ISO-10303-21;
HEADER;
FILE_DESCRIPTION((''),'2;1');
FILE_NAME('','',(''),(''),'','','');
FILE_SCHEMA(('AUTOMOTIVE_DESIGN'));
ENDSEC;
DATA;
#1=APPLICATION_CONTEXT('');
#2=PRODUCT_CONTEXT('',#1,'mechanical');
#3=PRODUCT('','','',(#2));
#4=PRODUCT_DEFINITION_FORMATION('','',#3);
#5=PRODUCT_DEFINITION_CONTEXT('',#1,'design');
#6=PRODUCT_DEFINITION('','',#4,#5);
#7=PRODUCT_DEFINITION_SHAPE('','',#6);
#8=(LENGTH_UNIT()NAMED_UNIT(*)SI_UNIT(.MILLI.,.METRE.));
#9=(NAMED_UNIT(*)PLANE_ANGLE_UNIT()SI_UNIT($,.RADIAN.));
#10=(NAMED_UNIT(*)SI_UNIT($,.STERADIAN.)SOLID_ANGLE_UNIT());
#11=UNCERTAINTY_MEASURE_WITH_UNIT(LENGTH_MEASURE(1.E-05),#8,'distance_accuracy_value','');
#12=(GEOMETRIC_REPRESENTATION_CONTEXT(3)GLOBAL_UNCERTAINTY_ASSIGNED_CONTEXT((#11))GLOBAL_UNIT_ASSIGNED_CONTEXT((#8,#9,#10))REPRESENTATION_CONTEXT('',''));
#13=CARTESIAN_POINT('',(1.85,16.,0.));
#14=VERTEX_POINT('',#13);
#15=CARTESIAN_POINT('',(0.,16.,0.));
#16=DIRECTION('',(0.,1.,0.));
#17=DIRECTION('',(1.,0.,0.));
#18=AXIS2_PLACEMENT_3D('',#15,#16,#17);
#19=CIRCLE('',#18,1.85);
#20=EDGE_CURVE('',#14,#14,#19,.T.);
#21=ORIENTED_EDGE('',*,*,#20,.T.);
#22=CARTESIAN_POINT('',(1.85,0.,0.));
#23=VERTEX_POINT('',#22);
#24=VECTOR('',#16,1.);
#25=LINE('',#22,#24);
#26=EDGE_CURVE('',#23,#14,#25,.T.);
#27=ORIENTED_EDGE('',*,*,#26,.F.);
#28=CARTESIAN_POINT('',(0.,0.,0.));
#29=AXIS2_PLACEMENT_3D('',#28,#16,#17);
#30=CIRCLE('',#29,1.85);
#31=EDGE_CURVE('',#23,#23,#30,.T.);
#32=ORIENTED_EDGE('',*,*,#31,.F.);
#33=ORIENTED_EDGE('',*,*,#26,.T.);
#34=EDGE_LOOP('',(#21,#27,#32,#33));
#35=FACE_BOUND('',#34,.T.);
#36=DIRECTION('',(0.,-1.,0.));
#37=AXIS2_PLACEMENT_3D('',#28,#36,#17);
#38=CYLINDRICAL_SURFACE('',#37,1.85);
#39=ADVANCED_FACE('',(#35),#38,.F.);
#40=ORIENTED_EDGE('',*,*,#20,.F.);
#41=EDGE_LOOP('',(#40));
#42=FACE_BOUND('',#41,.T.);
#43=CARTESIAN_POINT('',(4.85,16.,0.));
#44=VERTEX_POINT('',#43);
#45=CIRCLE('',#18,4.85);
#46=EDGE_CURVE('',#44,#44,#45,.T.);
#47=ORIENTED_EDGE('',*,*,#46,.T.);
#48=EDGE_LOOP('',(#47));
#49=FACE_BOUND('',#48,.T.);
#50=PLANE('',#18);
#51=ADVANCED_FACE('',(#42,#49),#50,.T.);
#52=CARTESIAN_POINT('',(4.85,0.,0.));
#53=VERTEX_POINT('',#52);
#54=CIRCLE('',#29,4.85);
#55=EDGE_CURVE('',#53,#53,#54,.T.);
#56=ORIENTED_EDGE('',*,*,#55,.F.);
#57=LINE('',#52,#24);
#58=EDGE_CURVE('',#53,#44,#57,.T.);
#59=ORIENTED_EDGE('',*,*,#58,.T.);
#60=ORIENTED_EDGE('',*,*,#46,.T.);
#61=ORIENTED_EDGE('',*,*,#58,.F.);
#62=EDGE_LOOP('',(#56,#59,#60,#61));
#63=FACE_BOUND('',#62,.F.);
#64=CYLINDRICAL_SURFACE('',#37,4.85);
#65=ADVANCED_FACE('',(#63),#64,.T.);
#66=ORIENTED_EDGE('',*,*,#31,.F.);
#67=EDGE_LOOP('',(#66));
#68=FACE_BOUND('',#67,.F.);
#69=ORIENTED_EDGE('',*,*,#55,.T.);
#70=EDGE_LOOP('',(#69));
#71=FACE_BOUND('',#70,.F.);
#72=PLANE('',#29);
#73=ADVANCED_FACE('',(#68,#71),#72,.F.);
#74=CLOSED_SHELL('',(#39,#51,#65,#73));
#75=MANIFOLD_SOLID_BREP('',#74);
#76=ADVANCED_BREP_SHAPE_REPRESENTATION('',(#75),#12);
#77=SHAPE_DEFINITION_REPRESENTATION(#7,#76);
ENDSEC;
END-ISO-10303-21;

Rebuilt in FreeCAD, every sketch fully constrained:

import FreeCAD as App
import Part
import Sketcher
from FreeCAD import Vector

doc = App.newDocument("Part")
body = doc.addObject("PartDesign::Body", "Body")

sketch1 = body.newObject("Sketcher::SketchObject", "Sketch")
sketch1.AttachmentSupport = (doc.getObject("XZ_Plane"), [""])
sketch1.MapMode = "FlatFace"
sketch1.addGeometry([
    Part.Circle(Vector(0, 0, 0), Vector(0, 0, 1), 4.85),
    Part.Circle(Vector(0, 0, 0), Vector(0, 0, 1), 1.85),
], False)
sketch1.addConstraint([
    Sketcher.Constraint("Coincident", 0, 3, -1, 1),
    Sketcher.Constraint("Coincident", 1, 3, -1, 1),
    Sketcher.Constraint("Diameter", 0, 9.7),
    Sketcher.Constraint("Diameter", 1, 3.7),
])
pad1 = body.newObject("PartDesign::Pad", "Pad")
pad1.Profile = sketch1
pad1.Length = 16
pad1.Reversed = True

doc.recompute()
